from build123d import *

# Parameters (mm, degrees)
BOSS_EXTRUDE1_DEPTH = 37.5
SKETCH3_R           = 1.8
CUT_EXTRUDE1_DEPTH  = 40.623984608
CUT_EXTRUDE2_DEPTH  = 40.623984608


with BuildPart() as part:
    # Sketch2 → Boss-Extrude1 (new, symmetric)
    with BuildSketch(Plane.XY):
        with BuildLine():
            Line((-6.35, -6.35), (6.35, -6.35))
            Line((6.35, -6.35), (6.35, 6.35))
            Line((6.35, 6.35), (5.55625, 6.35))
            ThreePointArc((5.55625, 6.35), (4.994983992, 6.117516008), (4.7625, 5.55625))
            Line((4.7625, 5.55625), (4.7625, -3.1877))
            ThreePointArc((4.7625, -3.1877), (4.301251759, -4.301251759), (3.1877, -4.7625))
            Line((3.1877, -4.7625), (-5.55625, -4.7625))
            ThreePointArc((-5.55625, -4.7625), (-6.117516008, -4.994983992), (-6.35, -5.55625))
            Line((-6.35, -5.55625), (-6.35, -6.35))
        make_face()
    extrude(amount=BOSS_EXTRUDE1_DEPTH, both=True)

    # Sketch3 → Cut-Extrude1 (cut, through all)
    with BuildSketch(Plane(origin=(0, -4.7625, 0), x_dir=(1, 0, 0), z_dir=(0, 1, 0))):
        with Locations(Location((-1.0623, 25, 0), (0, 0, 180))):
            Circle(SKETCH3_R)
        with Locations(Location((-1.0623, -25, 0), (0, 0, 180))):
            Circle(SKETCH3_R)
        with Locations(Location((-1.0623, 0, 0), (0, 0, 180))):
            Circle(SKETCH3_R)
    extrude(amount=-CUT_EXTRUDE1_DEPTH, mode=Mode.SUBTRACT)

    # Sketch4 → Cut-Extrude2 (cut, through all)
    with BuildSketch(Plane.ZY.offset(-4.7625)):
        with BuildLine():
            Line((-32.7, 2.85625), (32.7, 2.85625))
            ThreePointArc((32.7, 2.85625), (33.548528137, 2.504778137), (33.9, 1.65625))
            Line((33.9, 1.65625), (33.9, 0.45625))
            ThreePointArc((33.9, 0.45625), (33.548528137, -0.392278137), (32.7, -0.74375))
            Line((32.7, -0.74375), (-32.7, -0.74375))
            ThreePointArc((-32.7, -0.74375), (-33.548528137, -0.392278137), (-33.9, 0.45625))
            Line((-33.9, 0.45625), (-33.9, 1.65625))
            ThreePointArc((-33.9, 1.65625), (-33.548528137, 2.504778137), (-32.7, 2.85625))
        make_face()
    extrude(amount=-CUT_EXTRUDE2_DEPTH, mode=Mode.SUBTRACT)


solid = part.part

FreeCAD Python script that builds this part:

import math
import FreeCAD as App
import Part
import Sketcher

doc = App.newDocument("Part")
body = doc.addObject("PartDesign::Body", "Body")

# Sketch on XY plane
sketch1 = body.newObject("Sketcher::SketchObject", "Sketch")
sketch1.AttachmentSupport = (doc.getObject("XY_Plane"), [""])
sketch1.MapMode = "FlatFace"
sketch1.addGeometry(Part.LineSegment(App.Vector(-6.3, -6.3, 0), App.Vector(6.3, -6.3, 0)), False)
sketch1.addGeometry(Part.LineSegment(App.Vector(6.3, -6.3, 0), App.Vector(6.3, 6.3, 0)), False)
sketch1.addGeometry(Part.LineSegment(App.Vector(6.3, 6.3, 0), App.Vector(5.6, 6.3, 0)), False)
sketch1.addGeometry(Part.ArcOfCircle(Part.Circle(App.Vector(5.6, 5.6, 0), App.Vector(0, 0, 1), 0.8), math.radians(90), math.radians(180)), False)
sketch1.addGeometry(Part.LineSegment(App.Vector(4.8, 5.6, 0), App.Vector(4.8, -3.2, 0)), False)
sketch1.addGeometry(Part.ArcOfCircle(Part.Circle(App.Vector(3.2, -3.2, 0), App.Vector(0, 0, 1), 1.6), math.radians(-90), math.radians(0)), False)
sketch1.addGeometry(Part.LineSegment(App.Vector(3.2, -4.8, 0), App.Vector(-5.6, -4.8, 0)), False)
sketch1.addGeometry(Part.ArcOfCircle(Part.Circle(App.Vector(-5.6, -5.6, 0), App.Vector(0, 0, 1), 0.8), math.radians(90), math.radians(180)), False)
sketch1.addGeometry(Part.LineSegment(App.Vector(-6.3, -5.6, 0), App.Vector(-6.3, -6.3, 0)), False)
sketch1.addConstraint(Sketcher.Constraint("Coincident", 0, 2, 1, 1))
sketch1.addConstraint(Sketcher.Constraint("Coincident", 1, 2, 2, 1))
sketch1.addConstraint(Sketcher.Constraint("Tangent", 2, 2, 3, 1))
sketch1.addConstraint(Sketcher.Constraint("Tangent", 3, 2, 4, 1))
sketch1.addConstraint(Sketcher.Constraint("Tangent", 4, 2, 5, 2))
sketch1.addConstraint(Sketcher.Constraint("Tangent", 5, 1, 6, 1))
sketch1.addConstraint(Sketcher.Constraint("Tangent", 6, 2, 7, 1))
sketch1.addConstraint(Sketcher.Constraint("Tangent", 7, 2, 8, 1))
sketch1.addConstraint(Sketcher.Constraint("Coincident", 8, 2, 0, 1))
sketch1.addConstraint(Sketcher.Constraint("Horizontal", 0))
sketch1.addConstraint(Sketcher.Constraint("Vertical", 1))
sketch1.addConstraint(Sketcher.Constraint("Horizontal", 2))
sketch1.addConstraint(Sketcher.Constraint("Vertical", 4))
sketch1.addConstraint(Sketcher.Constraint("Horizontal", 6))
sketch1.addConstraint(Sketcher.Constraint("Vertical", 8))
sketch1.addConstraint(Sketcher.Constraint("Equal", 3, 7))
sketch1.addConstraint(Sketcher.Constraint("Symmetric", 3, 3, 7, 3, -1, 1))
sketch1.addConstraint(Sketcher.Constraint("Symmetric", 1, 2, 8, 2, -1, 1))
sketch1.addConstraint(Sketcher.Constraint("Equal", 0, 1))
sketch1.addConstraint(Sketcher.Constraint("DistanceX", 0, 1, 0, 2, 12.7))
sketch1.addConstraint(Sketcher.Constraint("Radius", 5, 1.5748))
sketch1.addConstraint(Sketcher.Constraint("Radius", 3, 0.79375))
pad1 = body.newObject("PartDesign::Pad", "Pad")
pad1.Profile = sketch1
pad1.Length = 75
pad1.Midplane = True

# Sketch on XZ plane
sketch2 = body.newObject("Sketcher::SketchObject", "Sketch001")
sketch2.AttachmentSupport = (doc.getObject("XZ_Plane"), [""])
sketch2.MapMode = "FlatFace"
sketch2.AttachmentOffset = App.Placement(App.Vector(0, 0, 4.7625), App.Rotation())
sketch2.addGeometry(Part.Circle(App.Vector(-1.1, -25, 0), App.Vector(0, 0, 1), 1.8), False)
sketch2.addGeometry(Part.Circle(App.Vector(-1.1, 25, 0), App.Vector(0, 0, 1), 1.8), False)
sketch2.addGeometry(Part.Circle(App.Vector(-1.1, 0, 0), App.Vector(0, 0, 1), 1.8), False)
sketch2.addConstraint(Sketcher.Constraint("Equal", 0, 1))
sketch2.addConstraint(Sketcher.Constraint("Equal", 1, 2))
sketch2.addConstraint(Sketcher.Constraint("Symmetric", 0, 3, 1, 3, -1))
sketch2.addConstraint(Sketcher.Constraint("PointOnObject", 2, 3, -1))
sketch2.addConstraint(Sketcher.Constraint("Vertical", 1, 3, 2, 3))
sketch2.addConstraint(Sketcher.Constraint("Diameter", 0, 3.6))
sketch2.addConstraint(Sketcher.Constraint("DistanceY", 0, 3, -1, 1, 25.0))
sketch2.addConstraint(Sketcher.Constraint("DistanceX", 0, 3, -1, 1, 1.0623))
pocket1 = body.newObject("PartDesign::Pocket", "Pocket")
pocket1.Profile = sketch2
pocket1.Type = "ThroughAll"
pocket1.Reversed = True

# Sketch on YZ plane
sketch3 = body.newObject("Sketcher::SketchObject", "Sketch002")
sketch3.AttachmentSupport = (doc.getObject("YZ_Plane"), [""])
sketch3.MapMode = "FlatFace"
sketch3.AttachmentOffset = App.Placement(App.Vector(0, 0, 4.7625), App.Rotation())
sketch3.addGeometry(Part.LineSegment(App.Vector(2.9, 32.7, 0), App.Vector(2.9, -32.7, 0)), False)
sketch3.addGeometry(Part.ArcOfCircle(Part.Circle(App.Vector(1.7, -32.7, 0), App.Vector(0, 0, 1), 1.2), math.radians(-90), math.radians(0)), False)
sketch3.addGeometry(Part.LineSegment(App.Vector(1.7, -33.9, 0), App.Vector(0.5, -33.9, 0)), False)
sketch3.addGeometry(Part.ArcOfCircle(Part.Circle(App.Vector(0.5, -32.7, 0), App.Vector(0, 0, 1), 1.2), math.radians(-180), math.radians(-90)), False)
sketch3.addGeometry(Part.LineSegment(App.Vector(-0.7, -32.7, 0), App.Vector(-0.7, 32.7, 0)), False)
sketch3.addGeometry(Part.ArcOfCircle(Part.Circle(App.Vector(0.5, 32.7, 0), App.Vector(0, 0, 1), 1.2), math.radians(90), math.radians(180)), False)
sketch3.addGeometry(Part.LineSegment(App.Vector(0.5, 33.9, 0), App.Vector(1.7, 33.9, 0)), False)
sketch3.addGeometry(Part.ArcOfCircle(Part.Circle(App.Vector(1.7, 32.7, 0), App.Vector(0, 0, 1), 1.2), math.radians(0), math.radians(90)), False)
sketch3.addConstraint(Sketcher.Constraint("Tangent", 0, 2, 1, 2))
sketch3.addConstraint(Sketcher.Constraint("Tangent", 1, 1, 2, 1))
sketch3.addConstraint(Sketcher.Constraint("Tangent", 2, 2, 3, 2))
sketch3.addConstraint(Sketcher.Constraint("Tangent", 3, 1, 4, 1))
sketch3.addConstraint(Sketcher.Constraint("Tangent", 4, 2, 5, 2))
sketch3.addConstraint(Sketcher.Constraint("Tangent", 5, 1, 6, 1))
sketch3.addConstraint(Sketcher.Constraint("Tangent", 6, 2, 7, 2))
sketch3.addConstraint(Sketcher.Constraint("Tangent", 7, 1, 0, 1))
sketch3.addConstraint(Sketcher.Constraint("Vertical", 0))
sketch3.addConstraint(Sketcher.Constraint("Horizontal", 2))
sketch3.addConstraint(Sketcher.Constraint("Vertical", 4))
sketch3.addConstraint(Sketcher.Constraint("Horizontal", 6))
sketch3.addConstraint(Sketcher.Constraint("Equal", 1, 3))
sketch3.addConstraint(Sketcher.Constraint("Equal", 3, 5))
sketch3.addConstraint(Sketcher.Constraint("Equal", 5, 7))
sketch3.addConstraint(Sketcher.Constraint("Radius", 1, 1.2))
sketch3.addConstraint(Sketcher.Constraint("DistanceX", 2, 2, 2, 1, 1.2))
sketch3.addConstraint(Sketcher.Constraint("DistanceY", 0, 2, 0, 1, 65.4))
sketch3.addConstraint(Sketcher.Constraint("DistanceY", 1, 3, -1, 1, 32.7))
sketch3.addConstraint(Sketcher.Constraint("DistanceX", -1, 1, 1, 3, 1.65625))
pocket2 = body.newObject("PartDesign::Pocket", "Pocket001")
pocket2.Profile = sketch3
pocket2.Type = "ThroughAll"
pocket2.Reversed = True

doc.recompute()
